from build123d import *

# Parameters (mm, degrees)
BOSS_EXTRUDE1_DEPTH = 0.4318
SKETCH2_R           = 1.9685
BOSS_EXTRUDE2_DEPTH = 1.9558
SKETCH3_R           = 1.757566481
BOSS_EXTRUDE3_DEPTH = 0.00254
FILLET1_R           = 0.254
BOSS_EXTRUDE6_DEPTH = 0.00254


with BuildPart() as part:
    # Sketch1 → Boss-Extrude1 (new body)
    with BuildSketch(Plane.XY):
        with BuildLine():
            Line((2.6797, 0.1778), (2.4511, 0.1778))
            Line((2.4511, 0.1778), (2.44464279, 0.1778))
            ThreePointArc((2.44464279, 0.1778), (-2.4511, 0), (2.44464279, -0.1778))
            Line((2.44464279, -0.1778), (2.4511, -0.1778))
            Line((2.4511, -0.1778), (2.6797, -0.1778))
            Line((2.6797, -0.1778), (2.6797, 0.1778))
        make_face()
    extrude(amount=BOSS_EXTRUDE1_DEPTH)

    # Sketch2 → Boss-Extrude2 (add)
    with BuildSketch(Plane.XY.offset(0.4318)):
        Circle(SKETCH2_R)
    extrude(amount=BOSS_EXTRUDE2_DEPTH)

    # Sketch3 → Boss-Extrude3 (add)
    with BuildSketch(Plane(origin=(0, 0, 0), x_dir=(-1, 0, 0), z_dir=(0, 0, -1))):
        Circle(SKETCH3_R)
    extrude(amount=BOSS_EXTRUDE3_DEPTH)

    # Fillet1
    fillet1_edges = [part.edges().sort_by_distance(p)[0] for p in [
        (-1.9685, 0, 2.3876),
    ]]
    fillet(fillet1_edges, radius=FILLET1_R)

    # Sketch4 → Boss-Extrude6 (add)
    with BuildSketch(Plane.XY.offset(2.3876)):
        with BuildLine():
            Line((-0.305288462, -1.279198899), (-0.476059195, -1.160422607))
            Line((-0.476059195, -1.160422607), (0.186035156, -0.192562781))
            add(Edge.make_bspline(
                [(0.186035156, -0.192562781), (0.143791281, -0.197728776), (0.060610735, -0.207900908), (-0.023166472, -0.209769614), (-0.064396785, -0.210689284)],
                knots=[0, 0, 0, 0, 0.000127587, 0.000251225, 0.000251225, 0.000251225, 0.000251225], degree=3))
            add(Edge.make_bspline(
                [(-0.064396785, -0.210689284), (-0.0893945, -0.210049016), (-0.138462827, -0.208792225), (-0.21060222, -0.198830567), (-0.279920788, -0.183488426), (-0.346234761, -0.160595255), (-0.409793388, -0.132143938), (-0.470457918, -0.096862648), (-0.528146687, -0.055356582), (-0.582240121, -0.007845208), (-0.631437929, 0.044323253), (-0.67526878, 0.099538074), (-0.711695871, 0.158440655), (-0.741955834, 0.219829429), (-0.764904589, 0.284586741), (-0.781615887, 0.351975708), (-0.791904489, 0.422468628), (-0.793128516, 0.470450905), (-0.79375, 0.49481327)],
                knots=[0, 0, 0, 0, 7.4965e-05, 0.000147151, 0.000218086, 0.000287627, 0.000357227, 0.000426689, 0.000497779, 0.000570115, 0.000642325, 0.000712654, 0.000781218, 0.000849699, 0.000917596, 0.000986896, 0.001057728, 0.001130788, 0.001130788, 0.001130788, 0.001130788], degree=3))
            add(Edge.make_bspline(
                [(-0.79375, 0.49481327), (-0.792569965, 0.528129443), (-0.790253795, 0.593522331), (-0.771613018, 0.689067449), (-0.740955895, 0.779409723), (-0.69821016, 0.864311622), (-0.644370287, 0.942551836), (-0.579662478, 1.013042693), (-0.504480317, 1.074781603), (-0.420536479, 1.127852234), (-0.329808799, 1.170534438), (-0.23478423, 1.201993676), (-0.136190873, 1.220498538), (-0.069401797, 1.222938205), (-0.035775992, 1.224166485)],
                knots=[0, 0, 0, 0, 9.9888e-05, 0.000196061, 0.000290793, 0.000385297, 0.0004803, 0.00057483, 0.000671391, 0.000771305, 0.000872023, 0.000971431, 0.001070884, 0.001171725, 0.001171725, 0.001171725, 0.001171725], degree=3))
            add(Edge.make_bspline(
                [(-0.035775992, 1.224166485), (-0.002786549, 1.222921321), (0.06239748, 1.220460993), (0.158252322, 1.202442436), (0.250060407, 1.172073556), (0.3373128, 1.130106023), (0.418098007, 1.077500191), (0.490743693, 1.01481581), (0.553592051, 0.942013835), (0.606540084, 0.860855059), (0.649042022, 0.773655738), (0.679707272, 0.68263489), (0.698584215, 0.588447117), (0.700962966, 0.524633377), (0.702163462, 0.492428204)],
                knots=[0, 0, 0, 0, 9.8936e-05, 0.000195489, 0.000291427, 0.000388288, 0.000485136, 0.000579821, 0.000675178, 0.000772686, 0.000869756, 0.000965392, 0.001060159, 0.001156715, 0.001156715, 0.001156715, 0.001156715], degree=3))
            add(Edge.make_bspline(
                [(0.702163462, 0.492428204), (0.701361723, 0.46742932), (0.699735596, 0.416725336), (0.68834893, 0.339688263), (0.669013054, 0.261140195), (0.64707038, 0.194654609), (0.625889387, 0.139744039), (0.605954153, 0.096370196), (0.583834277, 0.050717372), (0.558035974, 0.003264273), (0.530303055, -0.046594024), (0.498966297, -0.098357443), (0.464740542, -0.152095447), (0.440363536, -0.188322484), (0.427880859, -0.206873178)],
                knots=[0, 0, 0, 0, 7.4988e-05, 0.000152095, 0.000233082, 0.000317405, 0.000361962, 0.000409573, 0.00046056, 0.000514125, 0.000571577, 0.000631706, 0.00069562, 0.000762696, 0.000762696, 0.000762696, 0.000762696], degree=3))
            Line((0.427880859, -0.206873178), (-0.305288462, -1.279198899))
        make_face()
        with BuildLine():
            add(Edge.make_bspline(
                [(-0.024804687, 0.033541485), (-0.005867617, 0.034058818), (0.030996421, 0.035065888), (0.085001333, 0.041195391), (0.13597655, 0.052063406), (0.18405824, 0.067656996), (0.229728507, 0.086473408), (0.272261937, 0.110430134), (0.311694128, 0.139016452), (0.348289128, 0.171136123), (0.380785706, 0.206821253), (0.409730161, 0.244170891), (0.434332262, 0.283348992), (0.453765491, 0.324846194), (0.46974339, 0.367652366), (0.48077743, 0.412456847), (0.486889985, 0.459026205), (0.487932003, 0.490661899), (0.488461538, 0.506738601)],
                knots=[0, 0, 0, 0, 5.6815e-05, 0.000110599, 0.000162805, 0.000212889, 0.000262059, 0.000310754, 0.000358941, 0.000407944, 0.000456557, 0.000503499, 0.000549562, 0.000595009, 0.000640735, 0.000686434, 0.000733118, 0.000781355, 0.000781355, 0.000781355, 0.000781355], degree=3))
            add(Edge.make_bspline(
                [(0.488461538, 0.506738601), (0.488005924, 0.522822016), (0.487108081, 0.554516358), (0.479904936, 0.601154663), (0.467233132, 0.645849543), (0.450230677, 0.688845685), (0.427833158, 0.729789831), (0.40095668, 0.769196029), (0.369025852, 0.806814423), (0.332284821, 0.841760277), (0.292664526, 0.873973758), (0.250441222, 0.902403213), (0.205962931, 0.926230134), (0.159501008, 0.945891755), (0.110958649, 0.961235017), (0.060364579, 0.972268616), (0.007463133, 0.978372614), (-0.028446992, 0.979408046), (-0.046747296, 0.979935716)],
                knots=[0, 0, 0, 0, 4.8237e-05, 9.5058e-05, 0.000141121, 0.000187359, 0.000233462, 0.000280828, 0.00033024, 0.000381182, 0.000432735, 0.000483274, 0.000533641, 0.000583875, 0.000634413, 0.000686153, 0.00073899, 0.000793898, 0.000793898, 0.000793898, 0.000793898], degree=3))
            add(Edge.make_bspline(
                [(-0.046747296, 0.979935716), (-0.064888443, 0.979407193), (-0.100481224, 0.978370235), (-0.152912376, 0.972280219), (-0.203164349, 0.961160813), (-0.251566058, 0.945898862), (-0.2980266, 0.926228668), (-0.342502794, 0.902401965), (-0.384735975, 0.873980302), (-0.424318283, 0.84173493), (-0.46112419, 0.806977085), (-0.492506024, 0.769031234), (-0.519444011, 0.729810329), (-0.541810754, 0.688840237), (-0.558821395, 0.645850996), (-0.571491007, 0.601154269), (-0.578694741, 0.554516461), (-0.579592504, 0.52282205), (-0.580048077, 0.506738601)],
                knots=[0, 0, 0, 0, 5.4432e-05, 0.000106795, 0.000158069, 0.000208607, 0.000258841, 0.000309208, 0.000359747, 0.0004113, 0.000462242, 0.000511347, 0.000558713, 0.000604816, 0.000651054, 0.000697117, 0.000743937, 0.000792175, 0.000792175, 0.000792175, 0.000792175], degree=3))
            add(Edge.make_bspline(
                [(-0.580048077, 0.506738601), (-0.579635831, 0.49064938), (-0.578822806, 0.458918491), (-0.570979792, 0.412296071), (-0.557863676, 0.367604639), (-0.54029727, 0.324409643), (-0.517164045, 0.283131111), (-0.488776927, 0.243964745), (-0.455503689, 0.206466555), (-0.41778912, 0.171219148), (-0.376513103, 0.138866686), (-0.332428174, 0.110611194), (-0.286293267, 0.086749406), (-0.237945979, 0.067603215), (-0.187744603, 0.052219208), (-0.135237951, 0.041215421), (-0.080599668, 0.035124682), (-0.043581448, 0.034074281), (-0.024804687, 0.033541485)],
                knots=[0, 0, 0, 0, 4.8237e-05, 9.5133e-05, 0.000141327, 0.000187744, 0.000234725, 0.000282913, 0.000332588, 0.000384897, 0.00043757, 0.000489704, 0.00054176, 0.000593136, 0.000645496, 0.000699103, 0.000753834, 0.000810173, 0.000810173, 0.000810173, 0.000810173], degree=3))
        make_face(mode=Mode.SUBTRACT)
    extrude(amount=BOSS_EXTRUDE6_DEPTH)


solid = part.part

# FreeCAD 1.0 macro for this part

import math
import FreeCAD as App
import Part
import Sketcher

V = App.Vector
Q = App.Units.Quantity


def edges_at(feature, points):
    """Names of the edges that pass closest to the given points."""
    edges = feature.Shape.Edges
    near = lambda p: min(range(len(edges)), key=lambda i: edges[i].distToShape(Part.Vertex(*p))[0])
    return sorted({f"Edge{near(p) + 1}" for p in points})

doc = App.newDocument("Part")
body = doc.addObject("PartDesign::Body", "Body")

# Sketch on XY plane
sketch1 = body.newObject("Sketcher::SketchObject", "Sketch")
sketch1.AttachmentSupport = (doc.getObject("XY_Plane"), [""])
sketch1.MapMode = "FlatFace"
sketch1.addGeometry(Part.LineSegment(V(2.68, 0.18, 0), V(2.44, 0.18, 0)), False)
sketch1.addGeometry(Part.ArcOfCircle(Part.Circle(V(0, 0, 0), V(0, 0, 1), 2.45), math.radians(4), math.radians(356)), False)
sketch1.addGeometry(Part.LineSegment(V(2.44, -0.18, 0), V(2.68, -0.18, 0)), False)
sketch1.addGeometry(Part.LineSegment(V(2.68, -0.18, 0), V(2.68, 0.18, 0)), False)
sketch1.addConstraint(Sketcher.Constraint("Coincident", 0, 2, 1, 1))
sketch1.addConstraint(Sketcher.Constraint("Coincident", 1, 2, 2, 1))
sketch1.addConstraint(Sketcher.Constraint("Coincident", 2, 2, 3, 1))
sketch1.addConstraint(Sketcher.Constraint("Coincident", 3, 2, 0, 1))
sketch1.addConstraint(Sketcher.Constraint("Horizontal", 0))
sketch1.addConstraint(Sketcher.Constraint("Horizontal", 2))
sketch1.addConstraint(Sketcher.Constraint("Vertical", 3))
sketch1.addConstraint(Sketcher.Constraint("Coincident", 1, 3, -1, 1))
sketch1.addConstraint(Sketcher.Constraint("Vertical", 0, 2, 1, 2))
sketch1.addConstraint(Sketcher.Constraint("Radius", 1, Q("0.0965 in")))
sketch1.addConstraint(Sketcher.Constraint("DistanceY", 3, 1, 3, 2, Q("0.014 in")))
sketch1.addConstraint(Sketcher.Constraint("DistanceX", -1, 1, 2, 2, Q("0.1055 in")))
pad1 = body.newObject("PartDesign::Pad", "Pad")
pad1.Profile = sketch1
pad1.Length = Q("0.017 in")

# Sketch on XY plane
sketch2 = body.newObject("Sketcher::SketchObject", "Sketch001")
sketch2.AttachmentSupport = (doc.getObject("XY_Plane"), [""])
sketch2.MapMode = "FlatFace"
sketch2.AttachmentOffset = App.Placement(V(0, 0, 0.017 * 25.4), App.Rotation())
sketch2.addGeometry(Part.Circle(V(0, 0, 0), V(0, 0, 1), 2), False)
sketch2.addConstraint(Sketcher.Constraint("Coincident", 0, 3, -1, 1))
sketch2.addConstraint(Sketcher.Constraint("Diameter", 0, Q("0.155 in")))
pad2 = body.newObject("PartDesign::Pad", "Pad001")
pad2.Profile = sketch2
pad2.Length = Q("0.077 in")

# Sketch on XY plane
sketch3 = body.newObject("Sketcher::SketchObject", "Sketch002")
sketch3.AttachmentSupport = (doc.getObject("XY_Plane"), [""])
sketch3.MapMode = "FlatFace"
sketch3.addGeometry(Part.Circle(V(0, 0, 0), V(0, 0, 1), 1.8), False)
sketch3.addConstraint(Sketcher.Constraint("Coincident", 0, 3, -1, 1))
sketch3.addConstraint(Sketcher.Constraint("Diameter", 0, Q("3.515133 mm")))
pad3 = body.newObject("PartDesign::Pad", "Pad002")
pad3.Profile = sketch3
pad3.Length = Q("0.0001 in")
pad3.Reversed = True
doc.recompute()

fillet = body.newObject("PartDesign::Fillet", "Fillet")
fillet.Base = (pad3, edges_at(pad3, [(-1.968, 0, 2.388)]))
fillet.Radius = Q("0.01 in")

# Sketch on XY plane
sketch4 = body.newObject("Sketcher::SketchObject", "Sketch003")
sketch4.AttachmentSupport = (doc.getObject("XY_Plane"), [""])
sketch4.MapMode = "FlatFace"
sketch4.AttachmentOffset = App.Placement(V(0, 0, 0.094 * 25.4), App.Rotation())
sketch4.addGeometry(Part.LineSegment(V(-0.476059, -1.160423, 0), V(-0.305288, -1.279199, 0)), False)
sketch4.addGeometry(Part.LineSegment(V(-0.305288, -1.279199, 0), V(0.427881, -0.206873, 0)), False)
sketch4.addGeometry(Part.BSplineCurve([V(0.702163, 0.492428, 0), V(0.701362, 0.467429, 0), V(0.699736, 0.416725, 0), V(0.688349, 0.339688, 0), V(0.669013, 0.26114, 0), V(0.64707, 0.194655, 0), V(0.625889, 0.139744, 0), V(0.605954, 0.09637, 0), V(0.583834, 0.050717, 0), V(0.558036, 0.003264, 0), V(0.530303, -0.046594, 0), V(0.498966, -0.098357, 0), V(0.464741, -0.152095, 0), V(0.440364, -0.188322, 0), V(0.427881, -0.206873, 0)], [4, 1, 1, 1, 1, 1, 1, 1, 1, 1, 1, 1, 4], [0, 0.000074988, 0.000152095, 0.000233082, 0.000317405, 0.000361962, 0.000409573, 0.00046056, 0.000514125, 0.000571577, 0.000631706, 0.00069562, 0.000762696], False, 3, [1, 1, 1, 1, 1, 1, 1, 1, 1, 1, 1, 1, 1, 1, 1], False), False)
sketch4.addGeometry(Part.BSplineCurve([V(-0.035776, 1.224166, 0), V(-0.002787, 1.222921, 0), V(0.062397, 1.220461, 0), V(0.158252, 1.202442, 0), V(0.25006, 1.172074, 0), V(0.337313, 1.130106, 0), V(0.418098, 1.0775, 0), V(0.490744, 1.014816, 0), V(0.553592, 0.942014, 0), V(0.60654, 0.860855, 0), V(0.649042, 0.773656, 0), V(0.679707, 0.682635, 0), V(0.698584, 0.588447, 0), V(0.700963, 0.524633, 0), V(0.702163, 0.492428, 0)], [4, 1, 1, 1, 1, 1, 1, 1, 1, 1, 1, 1, 4], [0, 0.000098936, 0.000195489, 0.000291427, 0.000388288, 0.000485136, 0.000579821, 0.000675178, 0.000772686, 0.000869756, 0.000965392, 0.001060159, 0.001156715], False, 3, [1, 1, 1, 1, 1, 1, 1, 1, 1, 1, 1, 1, 1, 1, 1], False), False)
sketch4.addGeometry(Part.BSplineCurve([V(-0.79375, 0.494813, 0), V(-0.79257, 0.528129, 0), V(-0.790254, 0.593522, 0), V(-0.771613, 0.689067, 0), V(-0.740956, 0.77941, 0), V(-0.69821, 0.864312, 0), V(-0.64437, 0.942552, 0), V(-0.579662, 1.013043, 0), V(-0.50448, 1.074782, 0), V(-0.420536, 1.127852, 0), V(-0.329809, 1.170534, 0), V(-0.234784, 1.201994, 0), V(-0.136191, 1.220499, 0), V(-0.069402, 1.222938, 0), V(-0.035776, 1.224166, 0)], [4, 1, 1, 1, 1, 1, 1, 1, 1, 1, 1, 1, 4], [0, 0.000099888, 0.000196061, 0.000290793, 0.000385297, 0.0004803, 0.00057483, 0.000671391, 0.000771305, 0.000872023, 0.000971431, 0.001070884, 0.001171725], False, 3, [1, 1, 1, 1, 1, 1, 1, 1, 1, 1, 1, 1, 1, 1, 1], False), False)
sketch4.addGeometry(Part.BSplineCurve([V(-0.064397, -0.210689, 0), V(-0.089395, -0.210049, 0), V(-0.138463, -0.208792, 0), V(-0.210602, -0.198831, 0), V(-0.279921, -0.183488, 0), V(-0.346235, -0.160595, 0), V(-0.409793, -0.132144, 0), V(-0.470458, -0.096863, 0), V(-0.528147, -0.055357, 0), V(-0.58224, -0.007845, 0), V(-0.631438, 0.044323, 0), V(-0.675269, 0.099538, 0), V(-0.711696, 0.158441, 0), V(-0.741956, 0.219829, 0), V(-0.764905, 0.284587, 0), V(-0.781616, 0.351976, 0), V(-0.791904, 0.422469, 0), V(-0.793129, 0.470451, 0), V(-0.79375, 0.494813, 0)], [4, 1, 1, 1, 1, 1, 1, 1, 1, 1, 1, 1, 1, 1, 1, 1, 4], [0, 0.000074965, 0.000147151, 0.000218086, 0.000287627, 0.000357227, 0.000426689, 0.000497779, 0.000570115, 0.000642325, 0.000712654, 0.000781218, 0.000849699, 0.000917596, 0.000986896, 0.001057728, 0.001130788], False, 3, [1, 1, 1, 1, 1, 1, 1, 1, 1, 1, 1, 1, 1, 1, 1, 1, 1, 1, 1], False), False)
sketch4.addGeometry(Part.BSplineCurve([V(0.186035, -0.192563, 0), V(0.143791, -0.197729, 0), V(0.060611, -0.207901, 0), V(-0.023166, -0.20977, 0), V(-0.064397, -0.210689, 0)], [4, 1, 4], [0, 0.000127587, 0.000251225], False, 3, [1, 1, 1, 1, 1], False), False)
sketch4.addGeometry(Part.LineSegment(V(0.186035, -0.192563, 0), V(-0.476059, -1.160423, 0)), False)
sketch4.addGeometry(Part.BSplineCurve([V(-0.580048, 0.506739, 0), V(-0.579636, 0.490649, 0), V(-0.578823, 0.458918, 0), V(-0.57098, 0.412296, 0), V(-0.557864, 0.367605, 0), V(-0.540297, 0.32441, 0), V(-0.517164, 0.283131, 0), V(-0.488777, 0.243965, 0), V(-0.455504, 0.206467, 0), V(-0.417789, 0.171219, 0), V(-0.376513, 0.138867, 0), V(-0.332428, 0.110611, 0), V(-0.286293, 0.086749, 0), V(-0.237946, 0.067603, 0), V(-0.187745, 0.052219, 0), V(-0.135238, 0.041215, 0), V(-0.0806, 0.035125, 0), V(-0.043581, 0.034074, 0), V(-0.024805, 0.033541, 0)], [4, 1, 1, 1, 1, 1, 1, 1, 1, 1, 1, 1, 1, 1, 1, 1, 4], [0, 0.000048237, 0.000095133, 0.000141327, 0.000187744, 0.000234725, 0.000282913, 0.000332588, 0.000384897, 0.00043757, 0.000489704, 0.00054176, 0.000593136, 0.000645496, 0.000699103, 0.000753834, 0.000810173], False, 3, [1, 1, 1, 1, 1, 1, 1, 1, 1, 1, 1, 1, 1, 1, 1, 1, 1, 1, 1], False), False)
sketch4.addGeometry(Part.BSplineCurve([V(-0.046747, 0.979936, 0), V(-0.064888, 0.979407, 0), V(-0.100481, 0.97837, 0), V(-0.152912, 0.97228, 0), V(-0.203164, 0.961161, 0), V(-0.251566, 0.945899, 0), V(-0.298027, 0.926229, 0), V(-0.342503, 0.902402, 0), V(-0.384736, 0.87398, 0), V(-0.424318, 0.841735, 0), V(-0.461124, 0.806977, 0), V(-0.492506, 0.769031, 0), V(-0.519444, 0.72981, 0), V(-0.541811, 0.68884, 0), V(-0.558821, 0.645851, 0), V(-0.571491, 0.601154, 0), V(-0.578695, 0.554516, 0), V(-0.579593, 0.522822, 0), V(-0.580048, 0.506739, 0)], [4, 1, 1, 1, 1, 1, 1, 1, 1, 1, 1, 1, 1, 1, 1, 1, 4], [0, 0.000054432, 0.000106795, 0.000158069, 0.000208607, 0.000258841, 0.000309208, 0.000359747, 0.0004113, 0.000462242, 0.000511347, 0.000558713, 0.000604816, 0.000651054, 0.000697117, 0.000743937, 0.000792175], False, 3, [1, 1, 1, 1, 1, 1, 1, 1, 1, 1, 1, 1, 1, 1, 1, 1, 1, 1, 1], False), False)
sketch4.addGeometry(Part.BSplineCurve([V(0.488462, 0.506739, 0), V(0.488006, 0.522822, 0), V(0.487108, 0.554516, 0), V(0.479905, 0.601155, 0), V(0.467233, 0.64585, 0), V(0.450231, 0.688846, 0), V(0.427833, 0.72979, 0), V(0.400957, 0.769196, 0), V(0.369026, 0.806814, 0), V(0.332285, 0.84176, 0), V(0.292665, 0.873974, 0), V(0.250441, 0.902403, 0), V(0.205963, 0.92623, 0), V(0.159501, 0.945892, 0), V(0.110959, 0.961235, 0), V(0.060365, 0.972269, 0), V(0.007463, 0.978373, 0), V(-0.028447, 0.979408, 0), V(-0.046747, 0.979936, 0)], [4, 1, 1, 1, 1, 1, 1, 1, 1, 1, 1, 1, 1, 1, 1, 1, 4], [0, 0.000048237, 0.000095058, 0.000141121, 0.000187359, 0.000233462, 0.000280828, 0.00033024, 0.000381182, 0.000432735, 0.000483274, 0.000533641, 0.000583875, 0.000634413, 0.000686153, 0.00073899, 0.000793898], False, 3, [1, 1, 1, 1, 1, 1, 1, 1, 1, 1, 1, 1, 1, 1, 1, 1, 1, 1, 1], False), False)
sketch4.addGeometry(Part.BSplineCurve([V(-0.024805, 0.033541, 0), V(-0.005868, 0.034059, 0), V(0.030996, 0.035066, 0), V(0.085001, 0.041195, 0), V(0.135977, 0.052063, 0), V(0.184058, 0.067657, 0), V(0.229729, 0.086473, 0), V(0.272262, 0.11043, 0), V(0.311694, 0.139016, 0), V(0.348289, 0.171136, 0), V(0.380786, 0.206821, 0), V(0.40973, 0.244171, 0), V(0.434332, 0.283349, 0), V(0.453765, 0.324846, 0), V(0.469743, 0.367652, 0), V(0.480777, 0.412457, 0), V(0.48689, 0.459026, 0), V(0.487932, 0.490662, 0), V(0.488462, 0.506739, 0)], [4, 1, 1, 1, 1, 1, 1, 1, 1, 1, 1, 1, 1, 1, 1, 1, 4], [0, 0.000056815, 0.000110599, 0.000162805, 0.000212889, 0.000262059, 0.000310754, 0.000358941, 0.000407944, 0.000456557, 0.000503499, 0.000549562, 0.000595009, 0.000640735, 0.000686434, 0.000733118, 0.000781355], False, 3, [1, 1, 1, 1, 1, 1, 1, 1, 1, 1, 1, 1, 1, 1, 1, 1, 1, 1, 1], False), False)
sketch4.addConstraint(Sketcher.Constraint("Block", 2))
sketch4.addConstraint(Sketcher.Constraint("Block", 3))
sketch4.addConstraint(Sketcher.Constraint("Block", 4))
sketch4.addConstraint(Sketcher.Constraint("Block", 5))
sketch4.addConstraint(Sketcher.Constraint("Block", 6))
sketch4.addConstraint(Sketcher.Constraint("Block", 8))
sketch4.addConstraint(Sketcher.Constraint("Block", 9))
sketch4.addConstraint(Sketcher.Constraint("Block", 10))
sketch4.addConstraint(Sketcher.Constraint("Block", 11))
sketch4.addConstraint(Sketcher.Constraint("Coincident", 0, 2, 1, 1))
sketch4.addConstraint(Sketcher.Constraint("Coincident", 1, 2, 2, 2))
sketch4.addConstraint(Sketcher.Constraint("Coincident", 6, 1, 7, 1))
sketch4.addConstraint(Sketcher.Constraint("Coincident", 7, 2, 0, 1))
sketch4.addConstraint(Sketcher.Constraint("DistanceY", 0, 2, -1, 1, Q("1.279199 mm")))
sketch4.addConstraint(Sketcher.Constraint("DistanceX", 0, 2, -1, 1, Q("0.305288 mm")))
sketch4.addConstraint(Sketcher.Constraint("DistanceX", 7, 2, -1, 1, Q("0.476059 mm")))
sketch4.addConstraint(Sketcher.Constraint("DistanceY", 7, 2, 1, 2, Q("0.953549 mm")))
pad4 = body.newObject("PartDesign::Pad", "Pad003")
pad4.Profile = sketch4
pad4.Length = Q("0.0001 in")

doc.recompute()
